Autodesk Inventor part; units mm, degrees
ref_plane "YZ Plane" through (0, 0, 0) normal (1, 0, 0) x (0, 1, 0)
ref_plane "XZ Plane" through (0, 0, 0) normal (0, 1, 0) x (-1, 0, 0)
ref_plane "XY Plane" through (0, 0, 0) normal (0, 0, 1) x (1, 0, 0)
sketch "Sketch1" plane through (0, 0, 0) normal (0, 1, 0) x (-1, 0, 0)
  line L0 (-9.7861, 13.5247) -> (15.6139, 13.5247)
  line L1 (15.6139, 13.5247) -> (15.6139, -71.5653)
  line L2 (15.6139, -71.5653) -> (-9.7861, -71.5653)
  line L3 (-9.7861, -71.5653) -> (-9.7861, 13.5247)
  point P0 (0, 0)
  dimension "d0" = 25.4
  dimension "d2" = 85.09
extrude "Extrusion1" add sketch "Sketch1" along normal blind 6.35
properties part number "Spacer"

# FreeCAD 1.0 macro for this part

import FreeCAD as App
import Part
import Sketcher
Q = App.Units.Quantity

doc = App.newDocument("Part")
body = doc.addObject("PartDesign::Body", "Body")

sketch1 = body.newObject("Sketcher::SketchObject", "Sketch")
sketch1.AttachmentSupport = (doc.getObject("XZ_Plane"), [""])
sketch1.MapMode = "FlatFace"
sketch1.addGeometry([
    Part.LineSegment(App.Vector(-16, 14, 0), App.Vector(10, 14, 0)),
    Part.LineSegment(App.Vector(10, 14, 0), App.Vector(10, -72, 0)),
    Part.LineSegment(App.Vector(10, -72, 0), App.Vector(-16, -72, 0)),
    Part.LineSegment(App.Vector(-16, -72, 0), App.Vector(-16, 14, 0)),
], False)
sketch1.addConstraint([
    Sketcher.Constraint("Coincident", 0, 2, 1, 1),
    Sketcher.Constraint("Coincident", 1, 2, 2, 1),
    Sketcher.Constraint("Coincident", 2, 2, 3, 1),
    Sketcher.Constraint("Coincident", 3, 2, 0, 1),
    Sketcher.Constraint("Horizontal", 0),
    Sketcher.Constraint("Vertical", 1),
    Sketcher.Constraint("Horizontal", 2),
    Sketcher.Constraint("Vertical", 3),
    Sketcher.Constraint("DistanceX", 0, 1, 0, 2, Q("1 in")),
    Sketcher.Constraint("DistanceY", 1, 2, 1, 1, Q("3.35 in")),
    Sketcher.Constraint("DistanceX", -1, 1, 0, 2, Q("9.786 mm")),
    Sketcher.Constraint("DistanceY", -1, 1, 0, 2, Q("13.5247 mm")),
])
pad1 = body.newObject("PartDesign::Pad", "Pad")
pad1.Profile = sketch1
pad1.Length = Q("0.25 in")
pad1.Reversed = True

doc.recompute()
